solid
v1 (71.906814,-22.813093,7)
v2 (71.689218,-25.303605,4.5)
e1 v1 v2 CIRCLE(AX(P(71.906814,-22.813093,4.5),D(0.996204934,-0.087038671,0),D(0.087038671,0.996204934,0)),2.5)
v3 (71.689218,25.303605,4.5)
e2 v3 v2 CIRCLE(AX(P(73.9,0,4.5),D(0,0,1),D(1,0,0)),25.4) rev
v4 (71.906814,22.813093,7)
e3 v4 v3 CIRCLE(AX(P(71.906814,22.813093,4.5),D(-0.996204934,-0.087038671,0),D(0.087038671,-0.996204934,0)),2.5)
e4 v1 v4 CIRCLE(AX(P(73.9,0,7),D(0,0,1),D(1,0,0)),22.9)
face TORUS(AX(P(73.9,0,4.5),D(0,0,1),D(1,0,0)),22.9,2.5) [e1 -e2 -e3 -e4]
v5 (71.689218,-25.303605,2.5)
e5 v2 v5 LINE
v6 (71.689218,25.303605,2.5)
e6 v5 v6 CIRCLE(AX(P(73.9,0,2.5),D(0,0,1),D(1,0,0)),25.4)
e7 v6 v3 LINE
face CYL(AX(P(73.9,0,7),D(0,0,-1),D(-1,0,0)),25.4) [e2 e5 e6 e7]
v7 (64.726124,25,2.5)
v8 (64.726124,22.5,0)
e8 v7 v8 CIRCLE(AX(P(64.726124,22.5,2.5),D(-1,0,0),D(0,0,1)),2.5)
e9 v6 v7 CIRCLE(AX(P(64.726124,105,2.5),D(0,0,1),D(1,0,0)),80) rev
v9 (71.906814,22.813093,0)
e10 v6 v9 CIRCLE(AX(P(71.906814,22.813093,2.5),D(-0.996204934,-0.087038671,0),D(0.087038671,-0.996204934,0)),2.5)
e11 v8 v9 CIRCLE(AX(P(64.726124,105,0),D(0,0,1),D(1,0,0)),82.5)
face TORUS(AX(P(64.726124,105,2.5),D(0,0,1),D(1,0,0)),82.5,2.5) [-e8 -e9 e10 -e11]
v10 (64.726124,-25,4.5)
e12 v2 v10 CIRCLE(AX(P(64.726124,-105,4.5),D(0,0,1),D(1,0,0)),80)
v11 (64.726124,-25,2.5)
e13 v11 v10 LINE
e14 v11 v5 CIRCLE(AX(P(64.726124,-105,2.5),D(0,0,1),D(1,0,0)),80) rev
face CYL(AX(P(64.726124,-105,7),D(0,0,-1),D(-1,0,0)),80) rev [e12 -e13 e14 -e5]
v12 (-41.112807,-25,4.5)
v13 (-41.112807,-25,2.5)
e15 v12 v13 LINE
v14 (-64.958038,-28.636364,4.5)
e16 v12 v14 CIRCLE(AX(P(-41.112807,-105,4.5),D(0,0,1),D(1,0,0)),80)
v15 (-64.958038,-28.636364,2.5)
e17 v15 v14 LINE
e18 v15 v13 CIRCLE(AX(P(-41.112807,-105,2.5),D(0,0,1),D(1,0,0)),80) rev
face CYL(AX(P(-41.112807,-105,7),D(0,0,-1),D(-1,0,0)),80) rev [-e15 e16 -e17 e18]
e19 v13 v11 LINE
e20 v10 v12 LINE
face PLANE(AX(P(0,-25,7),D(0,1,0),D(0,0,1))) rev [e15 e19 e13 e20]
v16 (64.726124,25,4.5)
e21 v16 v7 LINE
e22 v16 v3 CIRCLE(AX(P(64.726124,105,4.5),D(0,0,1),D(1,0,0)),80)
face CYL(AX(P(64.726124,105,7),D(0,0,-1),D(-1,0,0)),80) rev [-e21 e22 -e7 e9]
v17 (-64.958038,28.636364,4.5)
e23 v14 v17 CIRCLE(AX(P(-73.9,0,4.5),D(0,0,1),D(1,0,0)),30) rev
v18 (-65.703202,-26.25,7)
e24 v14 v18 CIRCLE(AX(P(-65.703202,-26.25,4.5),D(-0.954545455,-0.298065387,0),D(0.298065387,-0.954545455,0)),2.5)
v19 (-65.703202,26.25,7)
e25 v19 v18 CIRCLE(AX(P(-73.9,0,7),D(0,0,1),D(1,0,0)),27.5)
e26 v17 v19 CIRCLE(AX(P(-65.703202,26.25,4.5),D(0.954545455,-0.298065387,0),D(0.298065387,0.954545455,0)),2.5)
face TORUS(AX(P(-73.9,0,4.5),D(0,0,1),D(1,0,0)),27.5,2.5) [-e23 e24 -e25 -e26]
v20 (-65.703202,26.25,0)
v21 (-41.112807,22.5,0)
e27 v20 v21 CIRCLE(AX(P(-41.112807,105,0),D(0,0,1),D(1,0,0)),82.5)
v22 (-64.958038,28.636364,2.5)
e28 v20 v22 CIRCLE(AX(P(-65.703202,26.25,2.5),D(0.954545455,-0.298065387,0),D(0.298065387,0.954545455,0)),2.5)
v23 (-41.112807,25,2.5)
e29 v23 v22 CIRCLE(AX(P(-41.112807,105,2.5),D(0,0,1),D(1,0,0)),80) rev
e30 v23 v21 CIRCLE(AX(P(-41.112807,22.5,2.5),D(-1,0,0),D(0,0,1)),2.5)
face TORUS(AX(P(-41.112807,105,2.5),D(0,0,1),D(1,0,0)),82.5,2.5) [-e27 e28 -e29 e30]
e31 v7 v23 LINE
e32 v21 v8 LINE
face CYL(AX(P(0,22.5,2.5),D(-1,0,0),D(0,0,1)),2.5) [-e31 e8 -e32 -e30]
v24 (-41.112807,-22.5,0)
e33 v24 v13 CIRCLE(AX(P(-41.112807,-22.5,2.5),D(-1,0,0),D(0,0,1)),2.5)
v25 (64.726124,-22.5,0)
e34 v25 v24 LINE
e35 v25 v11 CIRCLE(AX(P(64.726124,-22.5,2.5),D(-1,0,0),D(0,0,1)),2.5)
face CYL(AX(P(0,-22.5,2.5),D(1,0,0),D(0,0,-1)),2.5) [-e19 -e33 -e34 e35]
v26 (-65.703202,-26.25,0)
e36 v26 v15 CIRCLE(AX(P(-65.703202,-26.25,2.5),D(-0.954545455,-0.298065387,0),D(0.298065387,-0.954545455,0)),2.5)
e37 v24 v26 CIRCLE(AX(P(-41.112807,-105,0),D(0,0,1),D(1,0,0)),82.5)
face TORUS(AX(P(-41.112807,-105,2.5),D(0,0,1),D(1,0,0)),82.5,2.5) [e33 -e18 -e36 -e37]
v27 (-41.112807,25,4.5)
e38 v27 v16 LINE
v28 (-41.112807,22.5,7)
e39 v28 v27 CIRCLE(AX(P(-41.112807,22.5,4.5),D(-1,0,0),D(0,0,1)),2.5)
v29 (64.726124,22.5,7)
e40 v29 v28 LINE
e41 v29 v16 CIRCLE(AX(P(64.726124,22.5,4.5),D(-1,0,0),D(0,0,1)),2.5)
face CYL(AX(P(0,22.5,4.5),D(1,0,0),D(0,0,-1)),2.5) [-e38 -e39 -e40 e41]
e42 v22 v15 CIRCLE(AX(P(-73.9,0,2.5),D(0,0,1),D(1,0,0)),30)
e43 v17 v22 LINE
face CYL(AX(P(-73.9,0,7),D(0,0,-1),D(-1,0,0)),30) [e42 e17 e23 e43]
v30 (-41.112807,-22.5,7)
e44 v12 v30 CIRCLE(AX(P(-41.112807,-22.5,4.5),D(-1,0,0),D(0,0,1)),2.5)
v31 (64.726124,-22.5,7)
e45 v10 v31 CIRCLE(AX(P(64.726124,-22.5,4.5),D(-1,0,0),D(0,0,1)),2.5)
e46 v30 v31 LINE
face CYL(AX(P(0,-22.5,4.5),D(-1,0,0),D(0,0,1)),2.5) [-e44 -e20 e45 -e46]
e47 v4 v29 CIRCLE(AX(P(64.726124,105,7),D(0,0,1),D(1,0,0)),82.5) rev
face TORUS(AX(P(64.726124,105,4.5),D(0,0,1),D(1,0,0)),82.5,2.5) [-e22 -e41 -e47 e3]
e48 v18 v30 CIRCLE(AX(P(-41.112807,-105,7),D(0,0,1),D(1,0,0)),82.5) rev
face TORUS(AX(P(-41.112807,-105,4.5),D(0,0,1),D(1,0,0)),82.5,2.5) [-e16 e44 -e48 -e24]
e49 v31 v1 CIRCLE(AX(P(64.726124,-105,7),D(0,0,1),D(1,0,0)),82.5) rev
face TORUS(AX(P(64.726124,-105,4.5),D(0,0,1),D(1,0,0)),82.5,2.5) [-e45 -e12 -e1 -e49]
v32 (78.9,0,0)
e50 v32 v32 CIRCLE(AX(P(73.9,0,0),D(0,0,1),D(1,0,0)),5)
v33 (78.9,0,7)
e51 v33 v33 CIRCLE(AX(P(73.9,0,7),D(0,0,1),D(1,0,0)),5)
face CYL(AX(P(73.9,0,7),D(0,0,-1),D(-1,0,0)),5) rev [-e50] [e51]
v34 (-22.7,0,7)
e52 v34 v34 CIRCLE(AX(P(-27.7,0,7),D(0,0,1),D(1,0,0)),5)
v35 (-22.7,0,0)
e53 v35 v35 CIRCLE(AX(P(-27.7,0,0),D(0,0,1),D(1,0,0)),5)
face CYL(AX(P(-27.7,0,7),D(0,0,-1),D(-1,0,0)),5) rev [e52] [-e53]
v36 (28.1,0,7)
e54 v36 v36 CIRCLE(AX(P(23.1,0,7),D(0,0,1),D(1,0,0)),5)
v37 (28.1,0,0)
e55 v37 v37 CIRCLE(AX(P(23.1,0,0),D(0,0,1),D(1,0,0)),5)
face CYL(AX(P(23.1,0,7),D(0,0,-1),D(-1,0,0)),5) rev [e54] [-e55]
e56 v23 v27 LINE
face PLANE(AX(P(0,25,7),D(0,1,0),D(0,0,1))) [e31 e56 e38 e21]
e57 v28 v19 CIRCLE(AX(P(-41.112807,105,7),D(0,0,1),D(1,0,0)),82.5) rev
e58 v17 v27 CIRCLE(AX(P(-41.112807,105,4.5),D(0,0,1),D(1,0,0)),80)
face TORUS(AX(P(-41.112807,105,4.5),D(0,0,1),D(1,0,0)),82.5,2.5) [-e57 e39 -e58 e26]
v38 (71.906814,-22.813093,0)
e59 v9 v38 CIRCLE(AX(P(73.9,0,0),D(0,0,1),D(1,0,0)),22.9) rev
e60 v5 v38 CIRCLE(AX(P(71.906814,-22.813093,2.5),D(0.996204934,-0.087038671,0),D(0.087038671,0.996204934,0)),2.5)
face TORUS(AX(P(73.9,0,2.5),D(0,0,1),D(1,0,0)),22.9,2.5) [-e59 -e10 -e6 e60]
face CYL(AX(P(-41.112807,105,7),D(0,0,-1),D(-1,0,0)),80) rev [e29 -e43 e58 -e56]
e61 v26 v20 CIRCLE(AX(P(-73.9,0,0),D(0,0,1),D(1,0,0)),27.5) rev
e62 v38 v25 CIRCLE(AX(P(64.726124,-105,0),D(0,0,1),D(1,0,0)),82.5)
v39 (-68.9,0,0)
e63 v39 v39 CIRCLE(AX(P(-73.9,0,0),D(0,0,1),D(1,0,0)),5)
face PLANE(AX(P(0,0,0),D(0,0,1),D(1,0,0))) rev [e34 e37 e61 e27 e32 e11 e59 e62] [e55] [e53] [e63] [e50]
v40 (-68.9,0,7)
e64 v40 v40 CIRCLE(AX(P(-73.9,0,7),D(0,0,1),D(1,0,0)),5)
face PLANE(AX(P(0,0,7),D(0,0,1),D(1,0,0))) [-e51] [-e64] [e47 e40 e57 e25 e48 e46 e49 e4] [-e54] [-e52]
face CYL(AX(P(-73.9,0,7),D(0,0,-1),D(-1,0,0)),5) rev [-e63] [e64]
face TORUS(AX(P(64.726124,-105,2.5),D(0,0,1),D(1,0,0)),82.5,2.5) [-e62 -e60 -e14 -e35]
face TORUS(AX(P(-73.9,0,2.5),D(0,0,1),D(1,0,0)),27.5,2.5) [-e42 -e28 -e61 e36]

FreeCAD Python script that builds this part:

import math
import FreeCAD as App
import Part
import Sketcher

V = App.Vector


def edges_at(feature, points):
    """Names of the edges that pass closest to the given points."""
    edges = feature.Shape.Edges
    near = lambda p: min(range(len(edges)), key=lambda i: edges[i].distToShape(Part.Vertex(*p))[0])
    return sorted({f"Edge{near(p) + 1}" for p in points})

doc = App.newDocument("Part")
body = doc.addObject("PartDesign::Body", "Body")

sketch1 = body.newObject("Sketcher::SketchObject", "Sketch")
sketch1.AttachmentSupport = (doc.getObject("XY_Plane"), [""])
sketch1.MapMode = "FlatFace"
sketch1.addGeometry(Part.LineSegment(V(69.410011, 25, 0), V(-57.316876, 25, 0)), False)
sketch1.addGeometry(Part.ArcOfCircle(Part.Circle(V(-73.9, 0, 0), V(0, 0, 1), 30), math.radians(56.44269), math.radians(303.55731)), False)
sketch1.addGeometry(Part.LineSegment(V(-57.316876, -25, 0), V(69.410011, -25, 0)), False)
sketch1.addGeometry(Part.ArcOfCircle(Part.Circle(V(73.9, 0, 0), V(0, 0, 1), 25.4), math.radians(-100.181748), math.radians(0)), False)
sketch1.addGeometry(Part.ArcOfCircle(Part.Circle(V(73.9, 0, 0), V(0, 0, 1), 25.4), math.radians(0), math.radians(100.181748)), False)
sketch1.addGeometry(Part.Circle(V(-27.7, 0, 0), V(0, 0, 1), 5), False)
sketch1.addGeometry(Part.Circle(V(23.1, 0, 0), V(0, 0, 1), 5), False)
sketch1.addGeometry(Part.ArcOfCircle(Part.Circle(V(73.9, 0, 0), V(0, 0, 1), 5), math.radians(90), math.radians(270)), False)
sketch1.addGeometry(Part.ArcOfCircle(Part.Circle(V(73.9, 0, 0), V(0, 0, 1), 5), math.radians(0), math.radians(90)), False)
sketch1.addGeometry(Part.ArcOfCircle(Part.Circle(V(73.9, 0, 0), V(0, 0, 1), 5), math.radians(-90), math.radians(0)), False)
sketch1.addGeometry(Part.ArcOfCircle(Part.Circle(V(-73.9, 0, 0), V(0, 0, 1), 5), math.radians(0), math.radians(90)), False)
sketch1.addGeometry(Part.ArcOfCircle(Part.Circle(V(-73.9, 0, 0), V(0, 0, 1), 5), math.radians(-90), math.radians(0)), False)
sketch1.addGeometry(Part.ArcOfCircle(Part.Circle(V(-73.9, 0, 0), V(0, 0, 1), 5), math.radians(90), math.radians(270)), False)
sketch1.addConstraint(Sketcher.Constraint("Coincident", 0, 2, 1, 1))
sketch1.addConstraint(Sketcher.Constraint("Coincident", 1, 2, 2, 1))
sketch1.addConstraint(Sketcher.Constraint("Coincident", 2, 2, 3, 1))
sketch1.addConstraint(Sketcher.Constraint("Tangent", 3, 2, 4, 1))
sketch1.addConstraint(Sketcher.Constraint("Coincident", 4, 2, 0, 1))
sketch1.addConstraint(Sketcher.Constraint("Tangent", 7, 1, 8, 2))
sketch1.addConstraint(Sketcher.Constraint("Tangent", 8, 1, 9, 2))
sketch1.addConstraint(Sketcher.Constraint("Tangent", 9, 1, 7, 2))
sketch1.addConstraint(Sketcher.Constraint("Tangent", 10, 1, 11, 2))
sketch1.addConstraint(Sketcher.Constraint("Tangent", 11, 1, 12, 2))
sketch1.addConstraint(Sketcher.Constraint("Tangent", 12, 1, 10, 2))
sketch1.addConstraint(Sketcher.Constraint("Horizontal", 0))
sketch1.addConstraint(Sketcher.Constraint("Horizontal", 2))
sketch1.addConstraint(Sketcher.Constraint("Coincident", 7, 3, 3, 3))
sketch1.addConstraint(Sketcher.Constraint("Coincident", 10, 3, 1, 3))
sketch1.addConstraint(Sketcher.Constraint("Equal", 3, 4))
sketch1.addConstraint(Sketcher.Constraint("Equal", 5, 6))
sketch1.addConstraint(Sketcher.Constraint("Equal", 6, 7))
sketch1.addConstraint(Sketcher.Constraint("Equal", 9, 10))
sketch1.addConstraint(Sketcher.Constraint("Symmetric", 1, 3, 3, 3, -1, 1))
sketch1.addConstraint(Sketcher.Constraint("Symmetric", 9, 1, 11, 1, -2))
sketch1.addConstraint(Sketcher.Constraint("PointOnObject", 5, 3, -1))
sketch1.addConstraint(Sketcher.Constraint("PointOnObject", 6, 3, -1))
sketch1.addConstraint(Sketcher.Constraint("PointOnObject", 3, 2, -1))
sketch1.addConstraint(Sketcher.Constraint("PointOnObject", 8, 1, -1))
sketch1.addConstraint(Sketcher.Constraint("PointOnObject", 10, 1, -1))
sketch1.addConstraint(Sketcher.Constraint("Vertical", 0, 2, 1, 2))
sketch1.addConstraint(Sketcher.Constraint("Vertical", 9, 3, 7, 1))
sketch1.addConstraint(Sketcher.Constraint("Vertical", 7, 1, 9, 1))
sketch1.addConstraint(Sketcher.Constraint("Vertical", 11, 1, 12, 1))
sketch1.addConstraint(Sketcher.Constraint("Diameter", 5, 10.0))
sketch1.addConstraint(Sketcher.Constraint("Radius", 1, 30.0))
sketch1.addConstraint(Sketcher.Constraint("Radius", 3, 25.4))
sketch1.addConstraint(Sketcher.Constraint("DistanceY", -1, 1, 0, 2, 25.0))
sketch1.addConstraint(Sketcher.Constraint("DistanceX", 1, 3, 6, 3, 97.0))
sketch1.addConstraint(Sketcher.Constraint("DistanceX", 1, 3, -1, 1, 73.9))
sketch1.addConstraint(Sketcher.Constraint("DistanceX", 5, 3, -1, 1, 27.7))
pad1 = body.newObject("PartDesign::Pad", "Pad")
pad1.Profile = sketch1
pad1.Length = 7
doc.recompute()

fillet = body.newObject("PartDesign::Fillet", "Fillet")
fillet.Base = (pad1, edges_at(pad1, [
    (-57.317, 25, 3.5),
    (69.41, 25, 3.5),
    (69.41, -25, 3.5),
    (-57.317, -25, 3.5),
]))
fillet.Radius = 80
doc.recompute()

fillet2 = body.newObject("PartDesign::Fillet", "Fillet001")
fillet2.Base = (fillet, edges_at(fillet, [
    (91.061, 18.726, 0),
    (99.3, 0, 3.5),
    (11.807, -25, 0),
    (11.807, -25, 7),
    (11.807, 25, 0),
    (11.807, 25, 7),
    (-103.9, 0, 0),
    (-103.9, 0, 7),
    (68.211, -25.076, 0),
    (68.211, -25.076, 7),
    (68.211, 25.076, 0),
    (68.211, 25.076, 7),
    (-53.173, -25.914, 0),
    (-53.173, -25.914, 7),
    (-53.173, 25.914, 0),
    (-53.173, 25.914, 7),
]))
fillet2.Radius = 2.5

doc.recompute()
